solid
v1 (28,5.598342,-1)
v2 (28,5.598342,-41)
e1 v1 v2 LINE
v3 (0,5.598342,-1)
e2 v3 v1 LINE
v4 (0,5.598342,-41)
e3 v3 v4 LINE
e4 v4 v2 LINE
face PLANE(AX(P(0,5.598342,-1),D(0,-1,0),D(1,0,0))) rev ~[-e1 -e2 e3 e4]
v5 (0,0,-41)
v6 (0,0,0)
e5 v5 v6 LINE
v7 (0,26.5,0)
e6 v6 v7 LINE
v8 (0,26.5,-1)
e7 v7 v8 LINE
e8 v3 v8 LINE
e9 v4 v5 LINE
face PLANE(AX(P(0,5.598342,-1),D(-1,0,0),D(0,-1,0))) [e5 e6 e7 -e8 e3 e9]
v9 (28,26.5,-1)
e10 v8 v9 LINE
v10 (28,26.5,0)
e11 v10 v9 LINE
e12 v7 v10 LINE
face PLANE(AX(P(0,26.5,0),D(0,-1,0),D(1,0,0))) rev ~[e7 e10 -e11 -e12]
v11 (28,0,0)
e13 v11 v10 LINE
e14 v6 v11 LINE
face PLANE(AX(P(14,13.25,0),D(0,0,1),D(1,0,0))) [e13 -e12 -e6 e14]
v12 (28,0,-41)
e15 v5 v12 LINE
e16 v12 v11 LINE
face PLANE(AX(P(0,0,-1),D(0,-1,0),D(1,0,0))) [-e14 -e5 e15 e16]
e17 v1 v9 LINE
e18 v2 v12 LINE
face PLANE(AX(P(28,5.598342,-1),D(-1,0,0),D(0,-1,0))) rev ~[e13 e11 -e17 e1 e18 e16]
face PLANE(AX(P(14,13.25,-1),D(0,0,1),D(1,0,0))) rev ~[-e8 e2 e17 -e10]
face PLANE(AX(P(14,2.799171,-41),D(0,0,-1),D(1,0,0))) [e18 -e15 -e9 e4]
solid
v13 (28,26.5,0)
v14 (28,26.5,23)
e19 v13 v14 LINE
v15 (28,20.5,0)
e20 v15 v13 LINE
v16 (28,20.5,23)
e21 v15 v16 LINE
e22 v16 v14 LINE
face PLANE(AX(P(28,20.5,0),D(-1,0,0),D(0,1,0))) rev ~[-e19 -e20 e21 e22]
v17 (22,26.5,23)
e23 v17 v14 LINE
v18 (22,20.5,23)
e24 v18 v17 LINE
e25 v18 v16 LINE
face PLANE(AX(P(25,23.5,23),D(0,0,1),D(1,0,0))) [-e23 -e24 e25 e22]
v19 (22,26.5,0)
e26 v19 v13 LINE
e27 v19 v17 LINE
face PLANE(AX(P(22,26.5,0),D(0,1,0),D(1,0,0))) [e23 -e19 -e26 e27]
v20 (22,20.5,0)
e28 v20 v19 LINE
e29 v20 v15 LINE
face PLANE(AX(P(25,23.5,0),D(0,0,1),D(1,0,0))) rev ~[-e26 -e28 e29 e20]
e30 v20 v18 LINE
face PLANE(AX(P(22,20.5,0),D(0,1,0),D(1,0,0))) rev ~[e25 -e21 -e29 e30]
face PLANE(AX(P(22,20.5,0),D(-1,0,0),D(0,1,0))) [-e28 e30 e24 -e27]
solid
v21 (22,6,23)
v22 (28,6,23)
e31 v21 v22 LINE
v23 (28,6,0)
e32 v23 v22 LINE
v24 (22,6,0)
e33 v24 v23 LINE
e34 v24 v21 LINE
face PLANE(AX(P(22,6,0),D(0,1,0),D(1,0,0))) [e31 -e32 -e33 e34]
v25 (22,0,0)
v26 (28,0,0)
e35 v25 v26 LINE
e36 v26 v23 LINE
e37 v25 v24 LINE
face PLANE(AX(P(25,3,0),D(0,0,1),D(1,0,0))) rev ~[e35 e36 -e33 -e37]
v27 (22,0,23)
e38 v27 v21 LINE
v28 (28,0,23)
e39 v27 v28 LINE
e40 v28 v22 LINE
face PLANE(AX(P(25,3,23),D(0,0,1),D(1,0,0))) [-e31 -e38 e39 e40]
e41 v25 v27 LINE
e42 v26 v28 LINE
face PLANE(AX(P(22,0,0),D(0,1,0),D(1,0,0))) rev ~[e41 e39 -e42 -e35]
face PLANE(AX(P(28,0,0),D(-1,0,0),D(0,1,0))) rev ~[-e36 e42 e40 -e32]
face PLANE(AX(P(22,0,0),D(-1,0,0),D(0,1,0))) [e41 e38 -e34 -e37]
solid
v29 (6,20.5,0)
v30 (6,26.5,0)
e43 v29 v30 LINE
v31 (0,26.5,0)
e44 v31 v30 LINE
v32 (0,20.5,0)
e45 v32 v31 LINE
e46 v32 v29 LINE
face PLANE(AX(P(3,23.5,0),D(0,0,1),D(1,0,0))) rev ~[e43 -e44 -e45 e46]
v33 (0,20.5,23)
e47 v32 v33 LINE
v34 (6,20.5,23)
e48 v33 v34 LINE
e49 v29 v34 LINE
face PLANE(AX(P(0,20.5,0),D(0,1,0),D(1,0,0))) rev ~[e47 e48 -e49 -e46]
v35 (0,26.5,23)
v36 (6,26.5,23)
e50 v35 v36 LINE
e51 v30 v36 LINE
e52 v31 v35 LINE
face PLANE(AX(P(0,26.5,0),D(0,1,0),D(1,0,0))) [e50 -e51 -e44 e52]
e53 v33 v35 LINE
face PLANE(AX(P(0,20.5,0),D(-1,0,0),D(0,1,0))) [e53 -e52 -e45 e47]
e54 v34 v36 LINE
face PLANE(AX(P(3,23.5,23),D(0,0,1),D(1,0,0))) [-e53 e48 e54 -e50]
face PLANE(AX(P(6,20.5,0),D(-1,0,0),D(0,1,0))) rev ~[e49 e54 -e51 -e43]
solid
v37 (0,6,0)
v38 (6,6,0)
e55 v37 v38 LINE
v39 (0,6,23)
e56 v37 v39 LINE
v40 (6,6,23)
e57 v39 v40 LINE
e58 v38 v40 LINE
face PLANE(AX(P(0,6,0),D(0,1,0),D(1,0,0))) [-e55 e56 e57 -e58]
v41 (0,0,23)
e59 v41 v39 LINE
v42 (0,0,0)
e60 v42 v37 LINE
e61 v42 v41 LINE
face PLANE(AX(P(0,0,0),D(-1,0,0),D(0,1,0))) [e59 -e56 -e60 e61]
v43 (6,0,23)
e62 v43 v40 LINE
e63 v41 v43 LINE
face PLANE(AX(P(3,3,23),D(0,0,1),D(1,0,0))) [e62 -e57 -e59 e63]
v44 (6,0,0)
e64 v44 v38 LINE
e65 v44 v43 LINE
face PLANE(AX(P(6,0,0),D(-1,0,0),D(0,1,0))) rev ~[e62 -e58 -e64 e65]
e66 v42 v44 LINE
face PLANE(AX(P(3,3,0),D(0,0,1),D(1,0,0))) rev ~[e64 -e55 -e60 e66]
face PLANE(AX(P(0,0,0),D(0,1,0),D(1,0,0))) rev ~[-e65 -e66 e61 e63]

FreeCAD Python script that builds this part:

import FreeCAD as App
import Part
import Sketcher

V = App.Vector
Q = App.Units.Quantity


def add_polygon(sketch, points):
    """Adds a closed chain of lines whose ends are joined by coincident constraints."""
    first, n = sketch.GeometryCount, len(points)
    for a, b in zip(points, points[1:] + points[:1]):
        sketch.addGeometry(Part.LineSegment(App.Vector(*a, 0), App.Vector(*b, 0)), False)
    for i in range(n):
        sketch.addConstraint(Sketcher.Constraint("Coincident", first + i, 2, first + (i + 1) % n, 1))

doc = App.newDocument("Part")
body = doc.addObject("PartDesign::Body", "Body")
body.AllowCompound = True

# Sketch on XY plane
sketch1 = body.newObject("Sketcher::SketchObject", "Sketch")
sketch1.AttachmentSupport = (doc.getObject("XY_Plane"), [""])
sketch1.MapMode = "FlatFace"
add_polygon(sketch1, [(0, 6), (0, 0), (6, 0), (6, 6)])  # lines 0-3
add_polygon(sketch1, [(0, 26), (0, 20), (6, 20), (6, 26)])  # lines 4-7
add_polygon(sketch1, [(22, 6), (22, 0), (28, 0), (28, 6)])  # lines 8-11
add_polygon(sketch1, [(22, 26), (22, 20), (28, 20), (28, 26)])  # lines 12-15
sketch1.addConstraint(Sketcher.Constraint("Vertical", 0))
sketch1.addConstraint(Sketcher.Constraint("Horizontal", 1))
sketch1.addConstraint(Sketcher.Constraint("Vertical", 2))
sketch1.addConstraint(Sketcher.Constraint("Horizontal", 3))
sketch1.addConstraint(Sketcher.Constraint("Vertical", 4))
sketch1.addConstraint(Sketcher.Constraint("Horizontal", 5))
sketch1.addConstraint(Sketcher.Constraint("Vertical", 6))
sketch1.addConstraint(Sketcher.Constraint("Horizontal", 7))
sketch1.addConstraint(Sketcher.Constraint("Vertical", 8))
sketch1.addConstraint(Sketcher.Constraint("Horizontal", 9))
sketch1.addConstraint(Sketcher.Constraint("Vertical", 10))
sketch1.addConstraint(Sketcher.Constraint("Horizontal", 11))
sketch1.addConstraint(Sketcher.Constraint("Vertical", 12))
sketch1.addConstraint(Sketcher.Constraint("Horizontal", 13))
sketch1.addConstraint(Sketcher.Constraint("Vertical", 14))
sketch1.addConstraint(Sketcher.Constraint("Horizontal", 15))
sketch1.addConstraint(Sketcher.Constraint("Coincident", 0, 2, -1, 1))
sketch1.addConstraint(Sketcher.Constraint("PointOnObject", 4, 2, -2))
sketch1.addConstraint(Sketcher.Constraint("PointOnObject", 8, 2, -1))
sketch1.addConstraint(Sketcher.Constraint("Horizontal", 3, 2, 10, 2))
sketch1.addConstraint(Sketcher.Constraint("Horizontal", 5, 2, 12, 2))
sketch1.addConstraint(Sketcher.Constraint("Horizontal", 7, 2, 14, 2))
sketch1.addConstraint(Sketcher.Constraint("Vertical", 2, 2, 5, 2))
sketch1.addConstraint(Sketcher.Constraint("Vertical", 11, 2, 12, 2))
sketch1.addConstraint(Sketcher.Constraint("Vertical", 10, 2, 13, 2))
sketch1.addConstraint(Sketcher.Constraint("Equal", 7, 9))
sketch1.addConstraint(Sketcher.Constraint("Equal", 15, 0))
sketch1.addConstraint(Sketcher.Constraint("Equal", 2, 4))
sketch1.addConstraint(Sketcher.Constraint("DistanceX", 1, 1, 1, 2, Q("6 mm")))
sketch1.addConstraint(Sketcher.Constraint("DistanceX", -1, 1, 8, 2, Q("22 mm")))
sketch1.addConstraint(Sketcher.Constraint("DistanceY", -1, 1, 4, 2, Q("20.5 mm")))
pad1 = body.newObject("PartDesign::Pad", "Pad")
pad1.Profile = sketch1
pad1.Length = 23
body2 = doc.addObject("PartDesign::Body", "Body001")

# Sketch on XY plane
sketch2 = body2.newObject("Sketcher::SketchObject", "Sketch001")
sketch2.AttachmentSupport = (doc.getObject("XY_Plane001"), [""])
sketch2.MapMode = "FlatFace"
add_polygon(sketch2, [(0, 26), (0, 0), (28, 0), (28, 26)])  # lines 0-3
sketch2.addConstraint(Sketcher.Constraint("Vertical", 0))
sketch2.addConstraint(Sketcher.Constraint("Horizontal", 1))
sketch2.addConstraint(Sketcher.Constraint("Vertical", 2))
sketch2.addConstraint(Sketcher.Constraint("Horizontal", 3))
sketch2.addConstraint(Sketcher.Constraint("Coincident", 0, 2, -1, 1))
sketch2.addConstraint(Sketcher.Constraint("DistanceX", 1, 1, 1, 2, Q("28 mm")))
sketch2.addConstraint(Sketcher.Constraint("DistanceY", 0, 2, 0, 1, Q("26.5 mm")))
pad2 = body2.newObject("PartDesign::Pad", "Pad001")
pad2.Profile = sketch2
pad2.Length = 1
pad2.Reversed = True

# Sketch on XY plane
sketch3 = body2.newObject("Sketcher::SketchObject", "Sketch002")
sketch3.AttachmentSupport = (doc.getObject("XY_Plane001"), [""])
sketch3.MapMode = "FlatFace"
sketch3.AttachmentOffset = App.Placement(V(0, 0, -1), App.Rotation())
add_polygon(sketch3, [(0, 0), (0, 6), (28, 6), (28, 0)])  # lines 0-3
sketch3.addConstraint(Sketcher.Constraint("Vertical", 0))
sketch3.addConstraint(Sketcher.Constraint("Horizontal", 1))
sketch3.addConstraint(Sketcher.Constraint("Vertical", 2))
sketch3.addConstraint(Sketcher.Constraint("Horizontal", 3))
sketch3.addConstraint(Sketcher.Constraint("Coincident", 3, 2, -1, 1))
sketch3.addConstraint(Sketcher.Constraint("DistanceX", 1, 1, 1, 2, Q("28 mm")))
sketch3.addConstraint(Sketcher.Constraint("DistanceY", 0, 1, 0, 2, Q("5.598342 mm")))
pad3 = body2.newObject("PartDesign::Pad", "Pad002")
pad3.Profile = sketch3
pad3.Length = 40
pad3.Reversed = True

doc.recompute()
